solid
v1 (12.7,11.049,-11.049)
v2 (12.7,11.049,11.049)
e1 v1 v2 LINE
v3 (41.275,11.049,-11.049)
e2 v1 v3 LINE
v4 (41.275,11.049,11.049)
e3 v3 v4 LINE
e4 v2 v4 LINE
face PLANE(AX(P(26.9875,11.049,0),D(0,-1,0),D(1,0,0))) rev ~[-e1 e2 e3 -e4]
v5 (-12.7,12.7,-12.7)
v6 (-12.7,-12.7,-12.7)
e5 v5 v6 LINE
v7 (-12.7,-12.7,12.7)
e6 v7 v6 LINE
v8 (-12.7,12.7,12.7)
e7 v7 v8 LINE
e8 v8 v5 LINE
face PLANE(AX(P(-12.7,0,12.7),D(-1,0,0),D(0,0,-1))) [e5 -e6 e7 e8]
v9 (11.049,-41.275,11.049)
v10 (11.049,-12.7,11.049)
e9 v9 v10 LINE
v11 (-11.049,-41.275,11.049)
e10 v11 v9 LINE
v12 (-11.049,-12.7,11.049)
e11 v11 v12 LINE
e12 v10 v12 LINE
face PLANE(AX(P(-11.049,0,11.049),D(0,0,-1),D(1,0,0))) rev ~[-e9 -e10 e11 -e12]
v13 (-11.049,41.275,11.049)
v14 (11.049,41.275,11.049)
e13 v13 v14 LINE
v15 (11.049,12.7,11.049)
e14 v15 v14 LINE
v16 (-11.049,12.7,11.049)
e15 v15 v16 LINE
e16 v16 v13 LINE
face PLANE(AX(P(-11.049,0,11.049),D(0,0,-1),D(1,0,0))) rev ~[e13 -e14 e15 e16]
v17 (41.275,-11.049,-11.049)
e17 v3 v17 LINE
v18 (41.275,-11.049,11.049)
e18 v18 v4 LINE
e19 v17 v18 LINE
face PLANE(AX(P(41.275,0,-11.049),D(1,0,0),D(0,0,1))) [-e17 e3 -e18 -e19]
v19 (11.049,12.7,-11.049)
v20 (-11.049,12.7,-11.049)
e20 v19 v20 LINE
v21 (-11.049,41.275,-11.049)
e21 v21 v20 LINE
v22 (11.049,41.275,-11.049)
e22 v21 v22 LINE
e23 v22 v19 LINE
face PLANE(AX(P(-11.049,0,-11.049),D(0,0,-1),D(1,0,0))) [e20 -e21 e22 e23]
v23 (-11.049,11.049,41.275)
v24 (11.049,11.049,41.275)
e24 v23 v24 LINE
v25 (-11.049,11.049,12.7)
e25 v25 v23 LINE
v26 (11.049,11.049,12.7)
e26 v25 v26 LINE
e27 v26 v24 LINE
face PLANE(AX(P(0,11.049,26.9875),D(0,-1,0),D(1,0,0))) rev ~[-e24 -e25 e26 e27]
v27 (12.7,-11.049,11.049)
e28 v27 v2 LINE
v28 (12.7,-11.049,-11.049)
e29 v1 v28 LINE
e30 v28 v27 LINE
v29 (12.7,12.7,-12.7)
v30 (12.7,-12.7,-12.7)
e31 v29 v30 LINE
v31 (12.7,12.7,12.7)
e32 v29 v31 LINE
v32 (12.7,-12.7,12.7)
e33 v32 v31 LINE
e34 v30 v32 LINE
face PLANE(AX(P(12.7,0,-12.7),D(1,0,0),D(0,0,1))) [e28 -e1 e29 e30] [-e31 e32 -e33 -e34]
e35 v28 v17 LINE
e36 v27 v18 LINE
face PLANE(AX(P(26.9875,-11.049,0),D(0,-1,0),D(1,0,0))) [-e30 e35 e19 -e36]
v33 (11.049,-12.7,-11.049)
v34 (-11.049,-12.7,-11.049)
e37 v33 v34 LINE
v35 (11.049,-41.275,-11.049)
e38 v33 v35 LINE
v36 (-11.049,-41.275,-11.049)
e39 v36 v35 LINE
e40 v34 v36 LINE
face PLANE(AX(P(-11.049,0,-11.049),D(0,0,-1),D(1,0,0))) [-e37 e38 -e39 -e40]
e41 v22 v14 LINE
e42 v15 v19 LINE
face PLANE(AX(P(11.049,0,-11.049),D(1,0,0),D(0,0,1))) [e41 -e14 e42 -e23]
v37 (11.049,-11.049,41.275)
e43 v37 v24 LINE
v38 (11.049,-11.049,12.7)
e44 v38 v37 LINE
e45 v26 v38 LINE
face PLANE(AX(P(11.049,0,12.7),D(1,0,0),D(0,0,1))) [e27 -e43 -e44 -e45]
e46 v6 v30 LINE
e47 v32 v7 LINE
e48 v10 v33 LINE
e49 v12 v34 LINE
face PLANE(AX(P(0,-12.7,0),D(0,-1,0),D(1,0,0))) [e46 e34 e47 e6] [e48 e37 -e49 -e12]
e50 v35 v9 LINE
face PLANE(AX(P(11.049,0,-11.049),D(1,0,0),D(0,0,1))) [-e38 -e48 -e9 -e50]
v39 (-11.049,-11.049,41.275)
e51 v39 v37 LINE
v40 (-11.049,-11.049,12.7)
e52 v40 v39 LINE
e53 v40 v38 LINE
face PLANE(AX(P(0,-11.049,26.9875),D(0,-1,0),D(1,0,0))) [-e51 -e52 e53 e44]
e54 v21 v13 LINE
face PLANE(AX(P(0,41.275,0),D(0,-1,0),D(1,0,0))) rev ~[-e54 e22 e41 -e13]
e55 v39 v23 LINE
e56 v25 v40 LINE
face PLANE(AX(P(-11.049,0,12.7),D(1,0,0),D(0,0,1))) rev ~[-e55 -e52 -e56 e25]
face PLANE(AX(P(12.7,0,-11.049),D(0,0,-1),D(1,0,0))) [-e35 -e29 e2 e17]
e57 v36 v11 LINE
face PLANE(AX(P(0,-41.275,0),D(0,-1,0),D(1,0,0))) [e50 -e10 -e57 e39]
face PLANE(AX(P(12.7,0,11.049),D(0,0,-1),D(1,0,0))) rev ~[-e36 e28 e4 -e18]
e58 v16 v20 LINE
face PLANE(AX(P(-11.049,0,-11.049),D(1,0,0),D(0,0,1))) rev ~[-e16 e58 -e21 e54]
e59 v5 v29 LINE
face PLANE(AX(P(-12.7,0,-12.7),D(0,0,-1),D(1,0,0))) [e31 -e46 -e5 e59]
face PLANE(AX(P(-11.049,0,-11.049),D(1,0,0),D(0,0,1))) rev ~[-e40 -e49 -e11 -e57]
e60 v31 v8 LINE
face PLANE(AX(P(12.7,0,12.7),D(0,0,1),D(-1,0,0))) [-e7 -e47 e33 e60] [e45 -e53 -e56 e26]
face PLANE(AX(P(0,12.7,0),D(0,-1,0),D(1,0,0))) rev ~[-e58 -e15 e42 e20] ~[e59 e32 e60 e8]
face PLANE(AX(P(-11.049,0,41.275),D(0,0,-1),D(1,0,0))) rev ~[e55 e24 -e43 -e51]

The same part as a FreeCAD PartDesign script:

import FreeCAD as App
import Part
import Sketcher
Q = App.Units.Quantity

doc = App.newDocument("Part")
body = doc.addObject("PartDesign::Body", "Body")

# Sketch on XZ plane
sketch1 = body.newObject("Sketcher::SketchObject", "Sketch")
sketch1.AttachmentSupport = (doc.getObject("XZ_Plane"), [""])
sketch1.MapMode = "FlatFace"
sketch1.addGeometry([
    Part.LineSegment(App.Vector(-11.049, 11.049, 0), App.Vector(-11.049, -11.049, 0)),
    Part.LineSegment(App.Vector(-11.049, -11.049, 0), App.Vector(11.049, -11.049, 0)),
    Part.LineSegment(App.Vector(11.049, -11.049, 0), App.Vector(11.049, 11.049, 0)),
    Part.LineSegment(App.Vector(11.049, 11.049, 0), App.Vector(-11.049, 11.049, 0)),
], False)
sketch1.addConstraint([
    Sketcher.Constraint("Coincident", 0, 2, 1, 1),
    Sketcher.Constraint("Coincident", 1, 2, 2, 1),
    Sketcher.Constraint("Coincident", 2, 2, 3, 1),
    Sketcher.Constraint("Coincident", 3, 2, 0, 1),
    Sketcher.Constraint("Vertical", 0),
    Sketcher.Constraint("Horizontal", 1),
    Sketcher.Constraint("Vertical", 2),
    Sketcher.Constraint("Horizontal", 3),
    Sketcher.Constraint("Symmetric", 0, 2, 2, 2, -1, 1),
    Sketcher.Constraint("Equal", 3, 0),
    Sketcher.Constraint("DistanceX", 1, 1, 1, 2, Q("0.87 in")),
])
pad1 = body.newObject("PartDesign::Pad", "Pad")
pad1.Profile = sketch1
pad1.Length = Q("3.25 in")
pad1.Midplane = True

# Sketch on XZ plane
sketch2 = body.newObject("Sketcher::SketchObject", "Sketch001")
sketch2.AttachmentSupport = (doc.getObject("XZ_Plane"), [""])
sketch2.MapMode = "FlatFace"
sketch2.addGeometry([
    Part.LineSegment(App.Vector(-12.7, 12.7, 0), App.Vector(-12.7, -12.7, 0)),
    Part.LineSegment(App.Vector(-12.7, -12.7, 0), App.Vector(12.7, -12.7, 0)),
    Part.LineSegment(App.Vector(12.7, -12.7, 0), App.Vector(12.7, 12.7, 0)),
    Part.LineSegment(App.Vector(12.7, 12.7, 0), App.Vector(-12.7, 12.7, 0)),
], False)
sketch2.addConstraint([
    Sketcher.Constraint("Coincident", 0, 2, 1, 1),
    Sketcher.Constraint("Coincident", 1, 2, 2, 1),
    Sketcher.Constraint("Coincident", 2, 2, 3, 1),
    Sketcher.Constraint("Coincident", 3, 2, 0, 1),
    Sketcher.Constraint("Vertical", 0),
    Sketcher.Constraint("Horizontal", 1),
    Sketcher.Constraint("Vertical", 2),
    Sketcher.Constraint("Horizontal", 3),
    Sketcher.Constraint("Symmetric", 0, 2, 2, 2, -1, 1),
    Sketcher.Constraint("Equal", 3, 0),
    Sketcher.Constraint("DistanceX", 1, 1, 1, 2, Q("1 in")),
])
pad2 = body.newObject("PartDesign::Pad", "Pad001")
pad2.Profile = sketch2
pad2.Length = Q("1 in")
pad2.Midplane = True

# Sketch on XZ plane
sketch3 = body.newObject("Sketcher::SketchObject", "Sketch002")
sketch3.AttachmentSupport = (doc.getObject("XZ_Plane"), [""])
sketch3.MapMode = "FlatFace"
sketch3.addGeometry([
    Part.LineSegment(App.Vector(-11.049, 41.275, 0), App.Vector(-11.049, 12.7, 0)),
    Part.LineSegment(App.Vector(-11.049, 12.7, 0), App.Vector(11.049, 12.7, 0)),
    Part.LineSegment(App.Vector(11.049, 12.7, 0), App.Vector(11.049, 41.275, 0)),
    Part.LineSegment(App.Vector(11.049, 41.275, 0), App.Vector(-11.049, 41.275, 0)),
], False)
sketch3.addConstraint([
    Sketcher.Constraint("Coincident", 0, 2, 1, 1),
    Sketcher.Constraint("Coincident", 1, 2, 2, 1),
    Sketcher.Constraint("Coincident", 2, 2, 3, 1),
    Sketcher.Constraint("Coincident", 3, 2, 0, 1),
    Sketcher.Constraint("Vertical", 0),
    Sketcher.Constraint("Horizontal", 1),
    Sketcher.Constraint("Vertical", 2),
    Sketcher.Constraint("Horizontal", 3),
    Sketcher.Constraint("DistanceX", 1, 1, 1, 2, Q("0.87 in")),
    Sketcher.Constraint("DistanceY", -1, 1, 0, 2, Q("0.5 in")),
    Sketcher.Constraint("DistanceY", 0, 2, 0, 1, Q("1.125 in")),
    Sketcher.Constraint("DistanceX", 0, 2, -1, 1, Q("0.435 in")),
])
pad3 = body.newObject("PartDesign::Pad", "Pad002")
pad3.Profile = sketch3
pad3.Length = Q("0.87 in")
pad3.Midplane = True

# Sketch on XZ plane
sketch4 = body.newObject("Sketcher::SketchObject", "Sketch003")
sketch4.AttachmentSupport = (doc.getObject("XZ_Plane"), [""])
sketch4.MapMode = "FlatFace"
sketch4.addGeometry([
    Part.LineSegment(App.Vector(12.7, 11.049, 0), App.Vector(12.7, -11.049, 0)),
    Part.LineSegment(App.Vector(12.7, -11.049, 0), App.Vector(41.275, -11.049, 0)),
    Part.LineSegment(App.Vector(41.275, -11.049, 0), App.Vector(41.275, 11.049, 0)),
    Part.LineSegment(App.Vector(41.275, 11.049, 0), App.Vector(12.7, 11.049, 0)),
], False)
sketch4.addConstraint([
    Sketcher.Constraint("Coincident", 0, 2, 1, 1),
    Sketcher.Constraint("Coincident", 1, 2, 2, 1),
    Sketcher.Constraint("Coincident", 2, 2, 3, 1),
    Sketcher.Constraint("Coincident", 3, 2, 0, 1),
    Sketcher.Constraint("Vertical", 0),
    Sketcher.Constraint("Horizontal", 1),
    Sketcher.Constraint("Vertical", 2),
    Sketcher.Constraint("Horizontal", 3),
    Sketcher.Constraint("DistanceY", 0, 2, 0, 1, Q("0.87 in")),
    Sketcher.Constraint("DistanceX", -1, 1, 0, 2, Q("0.5 in")),
    Sketcher.Constraint("DistanceX", 1, 1, 1, 2, Q("1.125 in")),
    Sketcher.Constraint("DistanceY", 0, 2, -1, 1, Q("0.435 in")),
])
pad4 = body.newObject("PartDesign::Pad", "Pad003")
pad4.Profile = sketch4
pad4.Length = Q("0.87 in")
pad4.Midplane = True

doc.recompute()
